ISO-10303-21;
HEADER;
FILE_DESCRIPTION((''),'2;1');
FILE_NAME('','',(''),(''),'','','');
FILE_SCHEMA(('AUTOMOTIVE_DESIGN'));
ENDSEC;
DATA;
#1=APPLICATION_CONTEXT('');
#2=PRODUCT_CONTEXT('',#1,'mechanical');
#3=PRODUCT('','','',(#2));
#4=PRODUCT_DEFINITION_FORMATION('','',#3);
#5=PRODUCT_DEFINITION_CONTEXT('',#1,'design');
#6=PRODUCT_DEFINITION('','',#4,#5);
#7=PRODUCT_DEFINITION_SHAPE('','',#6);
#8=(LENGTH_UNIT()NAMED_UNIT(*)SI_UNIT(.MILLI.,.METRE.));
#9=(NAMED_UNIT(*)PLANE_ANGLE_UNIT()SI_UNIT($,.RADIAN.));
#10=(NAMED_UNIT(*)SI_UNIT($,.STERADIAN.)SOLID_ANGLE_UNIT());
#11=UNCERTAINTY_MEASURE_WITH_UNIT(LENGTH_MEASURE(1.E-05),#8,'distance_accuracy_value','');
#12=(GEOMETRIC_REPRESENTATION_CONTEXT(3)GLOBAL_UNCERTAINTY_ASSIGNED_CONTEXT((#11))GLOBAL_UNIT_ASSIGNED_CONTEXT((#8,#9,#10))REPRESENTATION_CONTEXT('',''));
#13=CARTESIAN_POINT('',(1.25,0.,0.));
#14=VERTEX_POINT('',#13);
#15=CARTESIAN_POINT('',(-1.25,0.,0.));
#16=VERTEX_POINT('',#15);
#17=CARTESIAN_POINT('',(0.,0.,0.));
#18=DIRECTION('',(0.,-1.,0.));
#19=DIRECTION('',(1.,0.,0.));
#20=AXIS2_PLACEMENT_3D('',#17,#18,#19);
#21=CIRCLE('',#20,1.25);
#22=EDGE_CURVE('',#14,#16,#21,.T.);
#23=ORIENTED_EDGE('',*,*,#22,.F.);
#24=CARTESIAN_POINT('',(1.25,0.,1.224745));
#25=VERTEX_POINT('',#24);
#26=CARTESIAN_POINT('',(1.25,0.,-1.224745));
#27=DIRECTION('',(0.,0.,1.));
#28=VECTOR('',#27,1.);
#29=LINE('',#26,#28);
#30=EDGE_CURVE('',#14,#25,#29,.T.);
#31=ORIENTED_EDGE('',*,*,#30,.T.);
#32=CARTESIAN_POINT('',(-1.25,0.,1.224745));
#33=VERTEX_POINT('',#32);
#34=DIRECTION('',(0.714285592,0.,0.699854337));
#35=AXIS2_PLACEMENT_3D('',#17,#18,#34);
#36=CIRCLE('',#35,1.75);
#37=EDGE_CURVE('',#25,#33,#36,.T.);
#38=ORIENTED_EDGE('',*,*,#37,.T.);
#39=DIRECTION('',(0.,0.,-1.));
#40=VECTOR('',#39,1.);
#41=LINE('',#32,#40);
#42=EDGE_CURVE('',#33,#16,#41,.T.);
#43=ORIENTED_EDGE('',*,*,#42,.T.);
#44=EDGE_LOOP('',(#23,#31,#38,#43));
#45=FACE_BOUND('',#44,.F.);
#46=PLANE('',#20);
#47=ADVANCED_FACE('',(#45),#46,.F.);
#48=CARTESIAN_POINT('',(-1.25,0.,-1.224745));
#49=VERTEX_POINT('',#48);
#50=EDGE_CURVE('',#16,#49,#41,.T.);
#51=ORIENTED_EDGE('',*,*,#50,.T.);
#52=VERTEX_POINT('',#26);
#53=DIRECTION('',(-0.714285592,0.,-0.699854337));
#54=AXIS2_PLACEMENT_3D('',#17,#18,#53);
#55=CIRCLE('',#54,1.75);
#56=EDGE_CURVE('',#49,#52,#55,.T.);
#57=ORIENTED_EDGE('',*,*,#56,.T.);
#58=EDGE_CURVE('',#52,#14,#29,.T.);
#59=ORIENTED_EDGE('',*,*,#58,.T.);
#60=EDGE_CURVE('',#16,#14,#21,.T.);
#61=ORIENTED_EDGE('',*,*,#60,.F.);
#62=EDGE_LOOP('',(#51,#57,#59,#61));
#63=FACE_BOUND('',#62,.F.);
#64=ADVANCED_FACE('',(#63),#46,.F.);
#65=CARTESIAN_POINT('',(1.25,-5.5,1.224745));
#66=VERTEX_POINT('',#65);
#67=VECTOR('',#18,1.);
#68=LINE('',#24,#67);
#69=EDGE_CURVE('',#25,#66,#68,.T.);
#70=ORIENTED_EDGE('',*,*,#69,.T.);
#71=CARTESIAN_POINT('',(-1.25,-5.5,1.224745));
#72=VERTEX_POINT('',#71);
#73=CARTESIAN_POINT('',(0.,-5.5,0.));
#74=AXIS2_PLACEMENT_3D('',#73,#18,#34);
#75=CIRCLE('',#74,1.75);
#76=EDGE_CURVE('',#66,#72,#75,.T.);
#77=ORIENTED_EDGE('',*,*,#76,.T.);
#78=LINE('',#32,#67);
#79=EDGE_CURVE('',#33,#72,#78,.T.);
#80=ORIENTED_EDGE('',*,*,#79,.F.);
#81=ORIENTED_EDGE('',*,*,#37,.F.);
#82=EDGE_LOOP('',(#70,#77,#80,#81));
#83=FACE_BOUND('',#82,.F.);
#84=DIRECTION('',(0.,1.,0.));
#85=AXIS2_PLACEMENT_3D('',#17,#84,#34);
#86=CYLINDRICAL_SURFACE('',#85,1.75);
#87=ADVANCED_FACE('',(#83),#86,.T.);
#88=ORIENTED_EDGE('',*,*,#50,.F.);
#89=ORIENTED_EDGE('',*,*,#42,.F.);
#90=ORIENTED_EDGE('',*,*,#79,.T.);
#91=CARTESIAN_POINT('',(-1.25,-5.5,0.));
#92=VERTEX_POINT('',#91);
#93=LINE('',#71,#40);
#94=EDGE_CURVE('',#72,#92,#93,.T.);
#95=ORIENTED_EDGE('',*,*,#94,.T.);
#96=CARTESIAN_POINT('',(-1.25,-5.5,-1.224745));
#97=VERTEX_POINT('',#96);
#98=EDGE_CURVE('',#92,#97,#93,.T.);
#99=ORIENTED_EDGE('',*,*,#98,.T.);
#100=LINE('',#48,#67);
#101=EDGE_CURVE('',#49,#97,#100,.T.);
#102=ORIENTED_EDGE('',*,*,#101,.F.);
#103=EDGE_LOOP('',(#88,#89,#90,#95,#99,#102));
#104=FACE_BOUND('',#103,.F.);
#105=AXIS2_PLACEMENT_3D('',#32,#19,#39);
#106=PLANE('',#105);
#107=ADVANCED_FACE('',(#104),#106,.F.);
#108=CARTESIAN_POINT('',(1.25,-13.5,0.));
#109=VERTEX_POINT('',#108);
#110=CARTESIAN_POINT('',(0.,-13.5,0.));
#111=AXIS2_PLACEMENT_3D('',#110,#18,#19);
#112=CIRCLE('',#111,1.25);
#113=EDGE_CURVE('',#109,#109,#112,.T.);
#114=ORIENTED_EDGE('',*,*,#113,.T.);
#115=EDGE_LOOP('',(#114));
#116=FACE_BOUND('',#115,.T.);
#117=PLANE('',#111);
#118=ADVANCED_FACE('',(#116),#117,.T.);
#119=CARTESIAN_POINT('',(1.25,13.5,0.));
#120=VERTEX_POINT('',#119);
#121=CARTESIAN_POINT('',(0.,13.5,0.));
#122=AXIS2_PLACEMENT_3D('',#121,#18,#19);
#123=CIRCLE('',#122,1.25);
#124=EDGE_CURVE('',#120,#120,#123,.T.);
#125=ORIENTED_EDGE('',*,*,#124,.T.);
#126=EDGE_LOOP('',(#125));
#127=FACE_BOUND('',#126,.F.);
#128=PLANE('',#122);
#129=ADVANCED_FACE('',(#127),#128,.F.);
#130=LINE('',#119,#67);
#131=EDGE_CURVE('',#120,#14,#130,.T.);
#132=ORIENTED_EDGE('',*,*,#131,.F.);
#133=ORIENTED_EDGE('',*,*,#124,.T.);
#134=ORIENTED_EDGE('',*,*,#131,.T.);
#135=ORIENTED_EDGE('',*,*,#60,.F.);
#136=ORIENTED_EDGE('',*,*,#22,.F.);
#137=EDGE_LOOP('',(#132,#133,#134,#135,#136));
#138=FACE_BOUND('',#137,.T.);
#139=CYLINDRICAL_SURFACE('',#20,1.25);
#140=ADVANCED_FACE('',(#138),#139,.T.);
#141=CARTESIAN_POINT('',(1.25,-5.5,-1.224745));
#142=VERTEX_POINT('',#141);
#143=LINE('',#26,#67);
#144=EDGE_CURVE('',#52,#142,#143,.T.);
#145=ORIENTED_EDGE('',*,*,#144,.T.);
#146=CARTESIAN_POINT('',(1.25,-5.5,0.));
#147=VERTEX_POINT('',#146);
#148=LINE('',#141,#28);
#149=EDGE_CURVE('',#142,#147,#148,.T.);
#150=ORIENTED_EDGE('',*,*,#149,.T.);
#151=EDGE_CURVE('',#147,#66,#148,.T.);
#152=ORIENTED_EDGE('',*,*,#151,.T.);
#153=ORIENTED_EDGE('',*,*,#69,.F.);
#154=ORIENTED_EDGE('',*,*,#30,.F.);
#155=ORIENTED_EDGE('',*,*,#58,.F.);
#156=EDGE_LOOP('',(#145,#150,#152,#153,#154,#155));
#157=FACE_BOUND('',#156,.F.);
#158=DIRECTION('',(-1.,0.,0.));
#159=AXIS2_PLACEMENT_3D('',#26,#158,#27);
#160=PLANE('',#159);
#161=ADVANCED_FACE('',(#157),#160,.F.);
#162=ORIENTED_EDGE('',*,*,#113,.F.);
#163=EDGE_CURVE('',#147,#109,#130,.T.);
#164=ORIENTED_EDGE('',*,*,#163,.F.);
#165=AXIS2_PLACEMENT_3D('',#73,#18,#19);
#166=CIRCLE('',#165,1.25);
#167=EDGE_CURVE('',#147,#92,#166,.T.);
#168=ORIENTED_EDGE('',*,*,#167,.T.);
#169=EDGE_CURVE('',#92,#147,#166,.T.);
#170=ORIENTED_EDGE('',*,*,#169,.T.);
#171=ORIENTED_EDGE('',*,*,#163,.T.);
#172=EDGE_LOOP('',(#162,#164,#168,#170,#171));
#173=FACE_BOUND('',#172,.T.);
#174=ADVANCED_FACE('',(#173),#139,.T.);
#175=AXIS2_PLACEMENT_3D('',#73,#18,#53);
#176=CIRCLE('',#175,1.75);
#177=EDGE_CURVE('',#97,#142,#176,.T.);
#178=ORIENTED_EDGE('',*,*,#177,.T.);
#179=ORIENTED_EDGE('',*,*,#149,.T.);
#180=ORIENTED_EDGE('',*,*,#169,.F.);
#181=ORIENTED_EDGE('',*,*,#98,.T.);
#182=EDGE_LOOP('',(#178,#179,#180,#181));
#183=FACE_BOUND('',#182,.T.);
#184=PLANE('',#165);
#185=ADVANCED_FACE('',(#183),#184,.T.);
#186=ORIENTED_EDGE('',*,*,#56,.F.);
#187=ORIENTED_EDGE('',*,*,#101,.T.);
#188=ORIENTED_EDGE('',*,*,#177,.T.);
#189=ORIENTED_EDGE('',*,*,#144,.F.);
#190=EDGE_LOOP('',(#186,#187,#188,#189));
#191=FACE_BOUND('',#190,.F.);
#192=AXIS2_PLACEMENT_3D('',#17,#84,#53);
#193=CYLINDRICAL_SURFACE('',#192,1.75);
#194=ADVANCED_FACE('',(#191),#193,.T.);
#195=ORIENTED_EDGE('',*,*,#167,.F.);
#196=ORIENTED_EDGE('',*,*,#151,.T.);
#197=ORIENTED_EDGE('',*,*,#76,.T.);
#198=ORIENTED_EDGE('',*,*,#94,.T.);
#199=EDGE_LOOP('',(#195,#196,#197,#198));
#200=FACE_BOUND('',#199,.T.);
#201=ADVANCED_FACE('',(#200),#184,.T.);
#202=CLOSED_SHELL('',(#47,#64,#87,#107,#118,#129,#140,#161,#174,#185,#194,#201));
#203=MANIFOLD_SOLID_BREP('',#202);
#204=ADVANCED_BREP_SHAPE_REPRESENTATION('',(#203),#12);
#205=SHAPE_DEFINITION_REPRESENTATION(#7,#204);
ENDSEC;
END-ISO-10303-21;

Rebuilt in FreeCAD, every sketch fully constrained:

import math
import FreeCAD as App
import Part
import Sketcher
Q = App.Units.Quantity

doc = App.newDocument("Part")
body = doc.addObject("PartDesign::Body", "Body")

# Sketch on XZ plane
sketch1 = body.newObject("Sketcher::SketchObject", "Sketch")
sketch1.AttachmentSupport = (doc.getObject("XZ_Plane"), [""])
sketch1.MapMode = "FlatFace"
sketch1.addGeometry(Part.LineSegment(App.Vector(-1.2, 1.2, 0), App.Vector(-1.2, -1.2, 0)), False)
sketch1.addGeometry(Part.ArcOfCircle(Part.Circle(App.Vector(0, 0, 0), App.Vector(0, 0, 1), 1.8), math.radians(-136), math.radians(-44)), False)
sketch1.addGeometry(Part.LineSegment(App.Vector(1.2, -1.2, 0), App.Vector(1.2, 1.2, 0)), False)
sketch1.addGeometry(Part.ArcOfCircle(Part.Circle(App.Vector(0, 0, 0), App.Vector(0, 0, 1), 1.8), math.radians(44), math.radians(136)), False)
sketch1.addConstraint(Sketcher.Constraint("Coincident", 0, 2, 1, 1))
sketch1.addConstraint(Sketcher.Constraint("Coincident", 1, 2, 2, 1))
sketch1.addConstraint(Sketcher.Constraint("Coincident", 2, 2, 3, 1))
sketch1.addConstraint(Sketcher.Constraint("Coincident", 3, 2, 0, 1))
sketch1.addConstraint(Sketcher.Constraint("Vertical", 0))
sketch1.addConstraint(Sketcher.Constraint("Vertical", 2))
sketch1.addConstraint(Sketcher.Constraint("Coincident", 1, 3, -1, 1))
sketch1.addConstraint(Sketcher.Constraint("Coincident", 3, 3, -1, 1))
sketch1.addConstraint(Sketcher.Constraint("Equal", 1, 3))
sketch1.addConstraint(Sketcher.Constraint("Horizontal", 0, 2, 1, 2))
sketch1.addConstraint(Sketcher.Constraint("Radius", 1, Q("1.75 mm")))
sketch1.addConstraint(Sketcher.Constraint("DistanceX", 0, 2, 1, 2, Q("2.5 mm")))
pad1 = body.newObject("PartDesign::Pad", "Pad")
pad1.Profile = sketch1
pad1.Length = 5.5

# Sketch on XZ plane
sketch2 = body.newObject("Sketcher::SketchObject", "Sketch001")
sketch2.AttachmentSupport = (doc.getObject("XZ_Plane"), [""])
sketch2.MapMode = "FlatFace"
sketch2.addGeometry(Part.Circle(App.Vector(0, 0, 0), App.Vector(0, 0, 1), 1.2), False)
sketch2.addConstraint(Sketcher.Constraint("Coincident", 0, 3, -1, 1))
sketch2.addConstraint(Sketcher.Constraint("Diameter", 0, Q("2.5 mm")))
pad2 = body.newObject("PartDesign::Pad", "Pad001")
pad2.Profile = sketch2
pad2.Length = 27
pad2.Midplane = True

doc.recompute()
